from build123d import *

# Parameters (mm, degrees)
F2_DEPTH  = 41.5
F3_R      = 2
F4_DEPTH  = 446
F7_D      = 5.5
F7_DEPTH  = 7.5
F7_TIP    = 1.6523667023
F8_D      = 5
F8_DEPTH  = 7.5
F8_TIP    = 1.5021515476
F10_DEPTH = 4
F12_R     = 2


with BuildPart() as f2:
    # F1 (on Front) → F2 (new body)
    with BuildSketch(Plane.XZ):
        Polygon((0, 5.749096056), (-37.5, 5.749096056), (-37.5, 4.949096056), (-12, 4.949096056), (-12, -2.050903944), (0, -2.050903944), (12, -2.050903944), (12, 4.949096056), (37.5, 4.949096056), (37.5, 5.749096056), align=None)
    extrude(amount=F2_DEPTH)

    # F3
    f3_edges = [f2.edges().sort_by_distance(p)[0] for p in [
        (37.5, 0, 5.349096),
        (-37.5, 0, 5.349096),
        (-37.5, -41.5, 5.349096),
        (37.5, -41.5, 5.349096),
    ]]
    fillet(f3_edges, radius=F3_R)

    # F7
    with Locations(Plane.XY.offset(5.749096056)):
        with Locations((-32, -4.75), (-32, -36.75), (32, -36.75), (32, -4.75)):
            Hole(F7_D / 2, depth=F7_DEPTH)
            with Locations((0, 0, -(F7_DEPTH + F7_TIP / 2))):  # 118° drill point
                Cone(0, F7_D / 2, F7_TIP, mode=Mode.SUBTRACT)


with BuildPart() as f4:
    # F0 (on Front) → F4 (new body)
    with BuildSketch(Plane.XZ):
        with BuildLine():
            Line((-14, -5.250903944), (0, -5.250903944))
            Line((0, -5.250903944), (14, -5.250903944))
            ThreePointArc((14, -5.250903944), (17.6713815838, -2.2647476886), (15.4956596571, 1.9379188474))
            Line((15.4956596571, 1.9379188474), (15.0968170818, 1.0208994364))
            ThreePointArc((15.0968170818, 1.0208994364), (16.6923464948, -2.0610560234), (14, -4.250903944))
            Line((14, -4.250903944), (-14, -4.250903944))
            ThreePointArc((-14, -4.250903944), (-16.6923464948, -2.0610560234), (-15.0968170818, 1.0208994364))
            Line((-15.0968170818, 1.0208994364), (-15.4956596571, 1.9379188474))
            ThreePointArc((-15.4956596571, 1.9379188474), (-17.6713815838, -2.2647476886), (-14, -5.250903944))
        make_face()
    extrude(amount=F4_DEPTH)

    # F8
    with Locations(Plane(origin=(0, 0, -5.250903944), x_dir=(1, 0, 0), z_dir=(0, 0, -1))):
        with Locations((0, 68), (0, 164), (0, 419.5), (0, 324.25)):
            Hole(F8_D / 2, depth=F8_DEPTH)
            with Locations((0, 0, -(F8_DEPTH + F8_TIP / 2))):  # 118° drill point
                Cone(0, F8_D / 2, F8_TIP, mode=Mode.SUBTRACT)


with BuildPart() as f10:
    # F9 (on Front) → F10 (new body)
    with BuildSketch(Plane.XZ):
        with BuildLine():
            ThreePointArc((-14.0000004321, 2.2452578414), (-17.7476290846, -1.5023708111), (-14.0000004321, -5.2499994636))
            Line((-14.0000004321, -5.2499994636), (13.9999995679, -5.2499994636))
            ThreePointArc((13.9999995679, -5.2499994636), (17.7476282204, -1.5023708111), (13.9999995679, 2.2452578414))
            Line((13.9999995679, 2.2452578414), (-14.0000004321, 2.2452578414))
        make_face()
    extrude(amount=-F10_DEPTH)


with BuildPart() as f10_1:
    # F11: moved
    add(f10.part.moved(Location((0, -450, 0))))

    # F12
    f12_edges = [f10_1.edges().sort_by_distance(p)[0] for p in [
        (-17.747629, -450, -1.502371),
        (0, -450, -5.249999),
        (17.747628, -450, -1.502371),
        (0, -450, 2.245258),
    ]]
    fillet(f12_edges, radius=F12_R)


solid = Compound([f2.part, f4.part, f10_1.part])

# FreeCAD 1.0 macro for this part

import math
import FreeCAD as App
import Part
import Sketcher
from FreeCAD import Vector


def edges_at(feature, points):
    """Names of the edges that pass closest to the given points."""
    edges = feature.Shape.Edges
    near = lambda p: min(range(len(edges)), key=lambda i: edges[i].distToShape(Part.Vertex(*p))[0])
    return sorted({f"Edge{near(p) + 1}" for p in points})

doc = App.newDocument("Part")
body = doc.addObject("PartDesign::Body", "Body")

sketch1 = body.newObject("Sketcher::SketchObject", "Sketch")
sketch1.AttachmentSupport = (doc.getObject("XZ_Plane"), [""])
sketch1.MapMode = "FlatFace"
sketch1.addGeometry([
    Part.LineSegment(Vector(-37.5, 5.7, 0), Vector(-37.5, 4.9, 0)),
    Part.LineSegment(Vector(-37.5, 4.9, 0), Vector(-12, 4.9, 0)),
    Part.LineSegment(Vector(-12, 4.9, 0), Vector(-12, -2.1, 0)),
    Part.LineSegment(Vector(-12, -2.1, 0), Vector(12, -2.1, 0)),
    Part.LineSegment(Vector(12, -2.1, 0), Vector(12, 4.9, 0)),
    Part.LineSegment(Vector(12, 4.9, 0), Vector(37.5, 4.9, 0)),
    Part.LineSegment(Vector(37.5, 4.9, 0), Vector(37.5, 5.7, 0)),
    Part.LineSegment(Vector(37.5, 5.7, 0), Vector(-37.5, 5.7, 0)),
], False)
sketch1.addConstraint([
    Sketcher.Constraint("Coincident", 0, 2, 1, 1),
    Sketcher.Constraint("Coincident", 1, 2, 2, 1),
    Sketcher.Constraint("Coincident", 2, 2, 3, 1),
    Sketcher.Constraint("Coincident", 3, 2, 4, 1),
    Sketcher.Constraint("Coincident", 4, 2, 5, 1),
    Sketcher.Constraint("Coincident", 5, 2, 6, 1),
    Sketcher.Constraint("Coincident", 6, 2, 7, 1),
    Sketcher.Constraint("Coincident", 7, 2, 0, 1),
    Sketcher.Constraint("Vertical", 0),
    Sketcher.Constraint("Horizontal", 1),
    Sketcher.Constraint("Vertical", 2),
    Sketcher.Constraint("Horizontal", 3),
    Sketcher.Constraint("Vertical", 4),
    Sketcher.Constraint("Horizontal", 5),
    Sketcher.Constraint("Vertical", 6),
    Sketcher.Constraint("Horizontal", 7),
    Sketcher.Constraint("Symmetric", 1, 2, 4, 2, -2),
    Sketcher.Constraint("Equal", 1, 5),
    Sketcher.Constraint("DistanceX", 3, 1, 3, 2, 24.0),
    Sketcher.Constraint("DistanceX", 7, 2, 7, 1, 75.0),
    Sketcher.Constraint("DistanceY", 2, 2, 2, 1, 7.0),
    Sketcher.Constraint("DistanceY", 0, 2, 0, 1, 0.8),
    Sketcher.Constraint("DistanceY", -1, 1, 0, 2, 4.949096),
])
pad1 = body.newObject("PartDesign::Pad", "Pad")
pad1.Profile = sketch1
pad1.Length = 41.5
doc.recompute()

fillet = body.newObject("PartDesign::Fillet", "Fillet")
fillet.Base = (pad1, edges_at(pad1, [
    (37.5, 0, 5.349),
    (-37.5, 0, 5.349),
    (-37.5, -41.5, 5.349),
    (37.5, -41.5, 5.349),
]))
fillet.Radius = 2

sketch2 = body.newObject("Sketcher::SketchObject", "Sketch001")
sketch2.AttachmentSupport = (doc.getObject("XY_Plane"), [""])
sketch2.MapMode = "FlatFace"
sketch2.AttachmentOffset = App.Placement(Vector(0, 0, 5.749096), App.Rotation())
sketch2.addGeometry([
    Part.Circle(Vector(-32, -4.8, 0), Vector(0, 0, 1), 2.8),
    Part.Circle(Vector(-32, -36.8, 0), Vector(0, 0, 1), 2.8),
    Part.Circle(Vector(32, -36.8, 0), Vector(0, 0, 1), 2.8),
    Part.Circle(Vector(32, -4.8, 0), Vector(0, 0, 1), 2.8),
], False)
sketch2.addConstraint([
    Sketcher.Constraint("Equal", 0, 1),
    Sketcher.Constraint("Equal", 1, 2),
    Sketcher.Constraint("Equal", 2, 3),
    Sketcher.Constraint("Symmetric", 1, 3, 2, 3, -2),
    Sketcher.Constraint("Symmetric", 0, 3, 3, 3, -2),
    Sketcher.Constraint("Vertical", 0, 3, 1, 3),
    Sketcher.Constraint("Diameter", 0, 5.5),
    Sketcher.Constraint("DistanceX", 0, 3, -1, 1, 32.0),
    Sketcher.Constraint("DistanceY", 1, 3, 0, 3, 32.0),
    Sketcher.Constraint("DistanceY", 0, 3, -1, 1, 4.75),
])
doc.recompute()
hole = body.newObject("PartDesign::Hole", "Hole")
hole.Profile = sketch2
hole.ThreadType = "None"
hole.Diameter = 5.5
hole.DepthType = "Dimension"
hole.Depth = 7.5
hole.DrillPoint = "Angled"
hole.DrillPointAngle = 118
body2 = doc.addObject("PartDesign::Body", "Body001")

sketch3 = body2.newObject("Sketcher::SketchObject", "Sketch002")
sketch3.AttachmentSupport = (doc.getObject("XZ_Plane001"), [""])
sketch3.MapMode = "FlatFace"
sketch3.addGeometry([
    Part.LineSegment(Vector(-14, -5.3, 0), Vector(14, -5.3, 0)),
    Part.ArcOfCircle(Part.Circle(Vector(14, -1.5, 0), Vector(0, 0, 1), 3.8), math.radians(-90), math.radians(66)),
    Part.LineSegment(Vector(15.5, 1.9, 0), Vector(15.1, 1, 0)),
    Part.ArcOfCircle(Part.Circle(Vector(14, -1.5, 0), Vector(0, 0, 1), 2.8), math.radians(-90), math.radians(66)),
    Part.LineSegment(Vector(14, -4.3, 0), Vector(-14, -4.3, 0)),
    Part.ArcOfCircle(Part.Circle(Vector(-14, -1.5, 0), Vector(0, 0, 1), 2.8), math.radians(114), math.radians(270)),
    Part.LineSegment(Vector(-15.1, 1, 0), Vector(-15.5, 1.9, 0)),
    Part.ArcOfCircle(Part.Circle(Vector(-14, -1.5, 0), Vector(0, 0, 1), 3.8), math.radians(114), math.radians(270)),
], False)
sketch3.addConstraint([
    Sketcher.Constraint("Tangent", 0, 2, 1, 1),
    Sketcher.Constraint("Coincident", 1, 2, 2, 1),
    Sketcher.Constraint("Coincident", 2, 2, 3, 2),
    Sketcher.Constraint("Tangent", 3, 1, 4, 1),
    Sketcher.Constraint("Tangent", 4, 2, 5, 2),
    Sketcher.Constraint("Coincident", 5, 1, 6, 1),
    Sketcher.Constraint("Coincident", 6, 2, 7, 1),
    Sketcher.Constraint("Tangent", 7, 2, 0, 1),
    Sketcher.Constraint("Horizontal", 0),
    Sketcher.Constraint("Horizontal", 4),
    Sketcher.Constraint("Coincident", 3, 3, 1, 3),
    Sketcher.Constraint("Coincident", 7, 3, 5, 3),
    Sketcher.Constraint("Equal", 3, 5),
    Sketcher.Constraint("Symmetric", 2, 2, 5, 1, -2),
    Sketcher.Constraint("Horizontal", 1, 2, 6, 2),
    Sketcher.Constraint("DistanceX", 0, 1, 0, 2, 28.0),
    Sketcher.Constraint("Radius", 1, 3.75),
    Sketcher.Constraint("Radius", 3, 2.75),
    Sketcher.Constraint("DistanceY", -1, 1, 2, 2, 1.020899),
    Sketcher.Constraint("DistanceX", -1, 1, 1, 2, 15.49566),
    Sketcher.Constraint("DistanceY", -1, 1, 1, 2, 1.937919),
])
pad2 = body2.newObject("PartDesign::Pad", "Pad001")
pad2.Profile = sketch3
pad2.Length = 446

sketch4 = body2.newObject("Sketcher::SketchObject", "Sketch003")
sketch4.AttachmentSupport = (doc.getObject("XY_Plane001"), [""])
sketch4.MapMode = "FlatFace"
sketch4.AttachmentOffset = App.Placement(Vector(0, 0, -5.250904), App.Rotation())
sketch4.addGeometry([
    Part.Circle(Vector(0, -68, 0), Vector(0, 0, 1), 2.5),
    Part.Circle(Vector(0, -164, 0), Vector(0, 0, 1), 2.5),
    Part.Circle(Vector(0, -419.5, 0), Vector(0, 0, 1), 2.5),
    Part.Circle(Vector(0, -324.2, 0), Vector(0, 0, 1), 2.5),
], False)
sketch4.addConstraint([
    Sketcher.Constraint("Equal", 0, 1),
    Sketcher.Constraint("Equal", 1, 2),
    Sketcher.Constraint("Equal", 2, 3),
    Sketcher.Constraint("PointOnObject", 0, 3, -2),
    Sketcher.Constraint("PointOnObject", 1, 3, -2),
    Sketcher.Constraint("PointOnObject", 2, 3, -2),
    Sketcher.Constraint("PointOnObject", 3, 3, -2),
    Sketcher.Constraint("Diameter", 0, 5.0),
    Sketcher.Constraint("DistanceY", 0, 3, -1, 1, 68.0),
    Sketcher.Constraint("DistanceY", 1, 3, -1, 1, 164.0),
    Sketcher.Constraint("DistanceY", 2, 3, -1, 1, 419.5),
    Sketcher.Constraint("DistanceY", 3, 3, -1, 1, 324.25),
])
doc.recompute()
hole2 = body2.newObject("PartDesign::Hole", "Hole001")
hole2.Profile = sketch4
hole2.ThreadType = "None"
hole2.Diameter = 5
hole2.DepthType = "Dimension"
hole2.Depth = 7.5
hole2.DrillPoint = "Angled"
hole2.DrillPointAngle = 118
hole2.Reversed = True
body3 = doc.addObject("PartDesign::Body", "Body002")

sketch5 = body3.newObject("Sketcher::SketchObject", "Sketch004")
sketch5.AttachmentSupport = (doc.getObject("XZ_Plane002"), [""])
sketch5.MapMode = "FlatFace"
sketch5.addGeometry([
    Part.ArcOfCircle(Part.Circle(Vector(-14, -1.5, 0), Vector(0, 0, 1), 3.7), math.radians(90), math.radians(270)),
    Part.LineSegment(Vector(-14, -5.2, 0), Vector(14, -5.2, 0)),
    Part.ArcOfCircle(Part.Circle(Vector(14, -1.5, 0), Vector(0, 0, 1), 3.7), math.radians(-90), math.radians(90)),
    Part.LineSegment(Vector(14, 2.2, 0), Vector(-14, 2.2, 0)),
], False)
sketch5.addConstraint([
    Sketcher.Constraint("Tangent", 0, 2, 1, 1),
    Sketcher.Constraint("Tangent", 1, 2, 2, 1),
    Sketcher.Constraint("Tangent", 2, 2, 3, 1),
    Sketcher.Constraint("Tangent", 3, 2, 0, 1),
    Sketcher.Constraint("Horizontal", 1),
    Sketcher.Constraint("Horizontal", 3),
    Sketcher.Constraint("DistanceX", 1, 1, 1, 2, 28.0),
    Sketcher.Constraint("DistanceX", 0, 3, -1, 1, 14.0),
    Sketcher.Constraint("DistanceY", 0, 2, -1, 1, 5.249999),
    Sketcher.Constraint("Radius", 0, 3.747629),
])
pad3 = body3.newObject("PartDesign::Pad", "Pad002")
pad3.Profile = sketch5
pad3.Length = 4
pad3.Reversed = True
body4 = doc.addObject("PartDesign::Body", "Body003")
doc.recompute()

body3.Placement = App.Placement(Vector(0, -450, 0), App.Rotation(Vector(0, 0, 1), 0))
boolean = body4.newObject("PartDesign::Boolean", "Boolean")
boolean.Type = "Fuse"
boolean.addObjects([body3])
doc.recompute()

fillet2 = body4.newObject("PartDesign::Fillet", "Fillet001")
fillet2.Base = (boolean, edges_at(boolean, [
    (-17.748, -450, -1.502),
    (0, -450, -5.25),
    (17.748, -450, -1.502),
    (0, -450, 2.245),
]))
fillet2.Radius = 2

doc.recompute()
